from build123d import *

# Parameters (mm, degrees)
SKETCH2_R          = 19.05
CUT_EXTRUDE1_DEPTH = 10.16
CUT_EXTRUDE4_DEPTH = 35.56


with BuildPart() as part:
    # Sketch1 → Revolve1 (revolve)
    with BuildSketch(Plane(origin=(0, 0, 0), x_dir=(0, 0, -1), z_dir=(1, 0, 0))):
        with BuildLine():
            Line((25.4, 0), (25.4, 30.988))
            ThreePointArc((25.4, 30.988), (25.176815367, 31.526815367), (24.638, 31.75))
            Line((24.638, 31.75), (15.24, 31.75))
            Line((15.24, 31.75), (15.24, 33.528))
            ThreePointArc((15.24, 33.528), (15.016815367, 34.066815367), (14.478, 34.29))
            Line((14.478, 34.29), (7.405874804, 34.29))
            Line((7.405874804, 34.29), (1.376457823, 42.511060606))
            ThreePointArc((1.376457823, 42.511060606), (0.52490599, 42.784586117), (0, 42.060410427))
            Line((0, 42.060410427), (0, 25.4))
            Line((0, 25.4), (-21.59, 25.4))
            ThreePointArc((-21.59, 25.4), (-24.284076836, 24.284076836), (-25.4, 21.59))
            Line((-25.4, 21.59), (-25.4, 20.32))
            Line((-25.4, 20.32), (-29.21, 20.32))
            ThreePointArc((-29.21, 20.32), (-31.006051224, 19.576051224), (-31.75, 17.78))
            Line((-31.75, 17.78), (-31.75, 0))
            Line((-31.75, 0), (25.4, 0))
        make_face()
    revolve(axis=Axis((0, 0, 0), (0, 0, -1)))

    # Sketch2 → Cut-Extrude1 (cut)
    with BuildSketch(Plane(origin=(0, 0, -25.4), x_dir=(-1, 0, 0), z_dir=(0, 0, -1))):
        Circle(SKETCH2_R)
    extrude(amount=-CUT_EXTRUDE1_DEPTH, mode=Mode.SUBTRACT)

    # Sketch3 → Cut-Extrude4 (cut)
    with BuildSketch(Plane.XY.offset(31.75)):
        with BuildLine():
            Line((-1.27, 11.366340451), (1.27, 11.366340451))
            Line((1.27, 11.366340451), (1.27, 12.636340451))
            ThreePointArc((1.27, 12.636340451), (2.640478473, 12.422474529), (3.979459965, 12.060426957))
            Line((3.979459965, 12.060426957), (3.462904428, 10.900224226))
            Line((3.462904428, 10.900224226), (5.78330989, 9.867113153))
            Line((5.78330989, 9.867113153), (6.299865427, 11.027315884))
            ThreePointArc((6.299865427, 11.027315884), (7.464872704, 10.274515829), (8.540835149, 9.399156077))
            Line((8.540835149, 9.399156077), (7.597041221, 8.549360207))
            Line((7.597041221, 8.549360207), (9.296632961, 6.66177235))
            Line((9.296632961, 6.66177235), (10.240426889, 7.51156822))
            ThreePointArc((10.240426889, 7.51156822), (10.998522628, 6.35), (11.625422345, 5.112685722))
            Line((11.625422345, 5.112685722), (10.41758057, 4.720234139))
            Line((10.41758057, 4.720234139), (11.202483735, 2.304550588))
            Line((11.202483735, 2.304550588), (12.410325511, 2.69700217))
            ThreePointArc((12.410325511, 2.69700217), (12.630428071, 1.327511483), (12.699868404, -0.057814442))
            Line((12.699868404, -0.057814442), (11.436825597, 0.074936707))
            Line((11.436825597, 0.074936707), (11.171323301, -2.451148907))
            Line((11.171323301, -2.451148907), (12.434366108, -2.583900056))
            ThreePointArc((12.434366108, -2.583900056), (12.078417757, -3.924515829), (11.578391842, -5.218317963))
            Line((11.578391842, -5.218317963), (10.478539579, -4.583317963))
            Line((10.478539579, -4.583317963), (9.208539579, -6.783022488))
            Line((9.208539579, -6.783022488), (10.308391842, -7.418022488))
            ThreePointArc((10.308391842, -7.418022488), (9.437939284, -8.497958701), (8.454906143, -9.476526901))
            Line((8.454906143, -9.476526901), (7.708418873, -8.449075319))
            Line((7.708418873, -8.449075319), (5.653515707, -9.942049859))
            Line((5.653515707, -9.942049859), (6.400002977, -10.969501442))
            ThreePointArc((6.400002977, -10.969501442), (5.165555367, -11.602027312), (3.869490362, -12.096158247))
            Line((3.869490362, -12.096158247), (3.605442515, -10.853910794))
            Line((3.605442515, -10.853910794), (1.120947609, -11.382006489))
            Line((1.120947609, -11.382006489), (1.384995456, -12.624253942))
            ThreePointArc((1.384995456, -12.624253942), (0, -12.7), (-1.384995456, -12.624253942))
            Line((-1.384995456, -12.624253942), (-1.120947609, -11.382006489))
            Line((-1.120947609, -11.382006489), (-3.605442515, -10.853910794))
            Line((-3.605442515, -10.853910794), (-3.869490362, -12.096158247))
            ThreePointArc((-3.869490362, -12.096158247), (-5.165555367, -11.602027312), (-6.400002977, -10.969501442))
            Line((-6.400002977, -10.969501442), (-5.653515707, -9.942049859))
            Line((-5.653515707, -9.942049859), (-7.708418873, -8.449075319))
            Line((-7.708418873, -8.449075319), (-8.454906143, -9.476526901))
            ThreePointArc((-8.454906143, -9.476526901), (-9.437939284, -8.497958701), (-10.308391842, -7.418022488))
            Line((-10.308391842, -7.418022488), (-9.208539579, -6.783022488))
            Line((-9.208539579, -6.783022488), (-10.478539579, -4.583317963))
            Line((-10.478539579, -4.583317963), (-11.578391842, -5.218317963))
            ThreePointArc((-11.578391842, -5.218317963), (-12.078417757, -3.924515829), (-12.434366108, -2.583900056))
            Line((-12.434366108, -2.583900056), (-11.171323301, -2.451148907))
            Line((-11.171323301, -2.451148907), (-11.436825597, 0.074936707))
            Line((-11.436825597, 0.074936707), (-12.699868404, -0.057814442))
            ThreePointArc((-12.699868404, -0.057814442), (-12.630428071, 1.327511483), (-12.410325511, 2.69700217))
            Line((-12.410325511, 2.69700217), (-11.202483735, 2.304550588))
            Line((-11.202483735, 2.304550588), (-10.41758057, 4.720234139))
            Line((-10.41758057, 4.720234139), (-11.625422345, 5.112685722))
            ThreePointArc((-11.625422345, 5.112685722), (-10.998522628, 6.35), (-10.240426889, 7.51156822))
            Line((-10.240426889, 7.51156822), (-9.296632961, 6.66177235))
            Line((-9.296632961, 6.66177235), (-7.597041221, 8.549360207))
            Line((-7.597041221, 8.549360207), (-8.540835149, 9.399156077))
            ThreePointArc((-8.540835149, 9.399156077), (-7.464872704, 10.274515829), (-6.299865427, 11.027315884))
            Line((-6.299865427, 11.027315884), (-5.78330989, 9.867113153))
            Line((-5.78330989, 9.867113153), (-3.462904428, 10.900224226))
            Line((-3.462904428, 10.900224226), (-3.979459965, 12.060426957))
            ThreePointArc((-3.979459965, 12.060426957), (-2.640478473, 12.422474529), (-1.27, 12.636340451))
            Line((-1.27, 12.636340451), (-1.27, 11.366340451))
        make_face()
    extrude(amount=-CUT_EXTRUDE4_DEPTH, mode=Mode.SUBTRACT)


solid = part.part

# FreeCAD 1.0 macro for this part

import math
import FreeCAD as App
import Part
import Sketcher

V = App.Vector
Q = App.Units.Quantity

doc = App.newDocument("Part")
body = doc.addObject("PartDesign::Body", "Body")

# Sketch on YZ plane
sketch1 = body.newObject("Sketcher::SketchObject", "Sketch")
sketch1.AttachmentSupport = (doc.getObject("YZ_Plane"), [""])
sketch1.MapMode = "FlatFace"
sketch1.addGeometry(Part.LineSegment(V(0, -25.4, 0), V(31, -25.4, 0)), False)
sketch1.addGeometry(Part.ArcOfCircle(Part.Circle(V(31, -24.6, 0), V(0, 0, 1), 0.8), math.radians(-90), math.radians(0)), False)
sketch1.addGeometry(Part.LineSegment(V(31.8, -24.6, 0), V(31.8, -15.2, 0)), False)
sketch1.addGeometry(Part.LineSegment(V(31.8, -15.2, 0), V(33.5, -15.2, 0)), False)
sketch1.addGeometry(Part.ArcOfCircle(Part.Circle(V(33.5, -14.5, 0), V(0, 0, 1), 0.8), math.radians(-90), math.radians(0)), False)
sketch1.addGeometry(Part.LineSegment(V(34.3, -14.5, 0), V(34.3, -7.4, 0)), False)
sketch1.addGeometry(Part.LineSegment(V(34.3, -7.4, 0), V(42.5, -1.4, 0)), False)
sketch1.addGeometry(Part.ArcOfCircle(Part.Circle(V(42.1, -0.8, 0), V(0, 0, 1), 0.8), math.radians(-54), math.radians(90)), False)
sketch1.addGeometry(Part.LineSegment(V(42.1, 0, 0), V(25.4, 0, 0)), False)
sketch1.addGeometry(Part.LineSegment(V(25.4, 0, 0), V(25.4, 21.6, 0)), False)
sketch1.addGeometry(Part.ArcOfCircle(Part.Circle(V(21.6, 21.6, 0), V(0, 0, 1), 3.8), math.radians(0), math.radians(90)), False)
sketch1.addGeometry(Part.LineSegment(V(21.6, 25.4, 0), V(20.3, 25.4, 0)), False)
sketch1.addGeometry(Part.LineSegment(V(20.3, 25.4, 0), V(20.3, 29.2, 0)), False)
sketch1.addGeometry(Part.ArcOfCircle(Part.Circle(V(17.8, 29.2, 0), V(0, 0, 1), 2.5), math.radians(0), math.radians(90)), False)
sketch1.addGeometry(Part.LineSegment(V(17.8, 31.8, 0), V(0, 31.8, 0)), False)
sketch1.addGeometry(Part.LineSegment(V(0, 31.8, 0), V(0, -25.4, 0)), False)
sketch1.addConstraint(Sketcher.Constraint("Tangent", 0, 2, 1, 1))
sketch1.addConstraint(Sketcher.Constraint("Tangent", 1, 2, 2, 1))
sketch1.addConstraint(Sketcher.Constraint("Coincident", 2, 2, 3, 1))
sketch1.addConstraint(Sketcher.Constraint("Tangent", 3, 2, 4, 1))
sketch1.addConstraint(Sketcher.Constraint("Tangent", 4, 2, 5, 1))
sketch1.addConstraint(Sketcher.Constraint("Coincident", 5, 2, 6, 1))
sketch1.addConstraint(Sketcher.Constraint("Tangent", 6, 2, 7, 1))
sketch1.addConstraint(Sketcher.Constraint("Tangent", 7, 2, 8, 1))
sketch1.addConstraint(Sketcher.Constraint("Coincident", 8, 2, 9, 1))
sketch1.addConstraint(Sketcher.Constraint("Tangent", 9, 2, 10, 1))
sketch1.addConstraint(Sketcher.Constraint("Tangent", 10, 2, 11, 1))
sketch1.addConstraint(Sketcher.Constraint("Coincident", 11, 2, 12, 1))
sketch1.addConstraint(Sketcher.Constraint("Tangent", 12, 2, 13, 1))
sketch1.addConstraint(Sketcher.Constraint("Tangent", 13, 2, 14, 1))
sketch1.addConstraint(Sketcher.Constraint("Coincident", 14, 2, 15, 1))
sketch1.addConstraint(Sketcher.Constraint("Coincident", 15, 2, 0, 1))
sketch1.addConstraint(Sketcher.Constraint("Horizontal", 0))
sketch1.addConstraint(Sketcher.Constraint("Vertical", 2))
sketch1.addConstraint(Sketcher.Constraint("Horizontal", 3))
sketch1.addConstraint(Sketcher.Constraint("Vertical", 5))
sketch1.addConstraint(Sketcher.Constraint("Horizontal", 8))
sketch1.addConstraint(Sketcher.Constraint("Vertical", 9))
sketch1.addConstraint(Sketcher.Constraint("Horizontal", 11))
sketch1.addConstraint(Sketcher.Constraint("Vertical", 12))
sketch1.addConstraint(Sketcher.Constraint("Horizontal", 14))
sketch1.addConstraint(Sketcher.Constraint("Vertical", 15))
sketch1.addConstraint(Sketcher.Constraint("Equal", 1, 4))
sketch1.addConstraint(Sketcher.Constraint("Equal", 4, 7))
sketch1.addConstraint(Sketcher.Constraint("PointOnObject", 7, 2, -1))
sketch1.addConstraint(Sketcher.Constraint("PointOnObject", 14, 2, -2))
sketch1.addConstraint(Sketcher.Constraint("Radius", 13, Q("0.1 in")))
sketch1.addConstraint(Sketcher.Constraint("Radius", 1, Q("0.03 in")))
sketch1.addConstraint(Sketcher.Constraint("Radius", 10, Q("0.15 in")))
sketch1.addConstraint(Sketcher.Constraint("DistanceX", 14, 2, 14, 1, Q("0.7 in")))
sketch1.addConstraint(Sketcher.Constraint("DistanceY", 0, 2, -1, 1, Q("1 in")))
sketch1.addConstraint(Sketcher.Constraint("DistanceX", -1, 1, 8, 2, Q("1 in")))
sketch1.addConstraint(Sketcher.Constraint("DistanceY", -1, 1, 10, 2, Q("1 in")))
sketch1.addConstraint(Sketcher.Constraint("DistanceX", 0, 1, 0, 2, Q("1.22 in")))
sketch1.addConstraint(Sketcher.Constraint("DistanceX", 3, 1, 3, 2, Q("0.07 in")))
sketch1.addConstraint(Sketcher.Constraint("DistanceY", 2, 1, 2, 2, Q("0.37 in")))
sketch1.addConstraint(Sketcher.Constraint("DistanceY", 12, 1, 12, 2, Q("0.15 in")))
sketch1.addConstraint(Sketcher.Constraint("DistanceX", 8, 2, 8, 1, Q("16.66041 mm")))
sketch1.addConstraint(Sketcher.Constraint("DistanceY", 5, 1, 5, 2, Q("7.072125 mm")))
revolution = body.newObject("PartDesign::Revolution", "Revolution")
revolution.Profile = sketch1
revolution.ReferenceAxis = (sketch1, ["V_Axis"])
revolution.Angle = 360

# Sketch on XY plane
sketch2 = body.newObject("Sketcher::SketchObject", "Sketch001")
sketch2.AttachmentSupport = (doc.getObject("XY_Plane"), [""])
sketch2.MapMode = "FlatFace"
sketch2.AttachmentOffset = App.Placement(V(0, 0, -1 * 25.4), App.Rotation())
sketch2.addGeometry(Part.Circle(V(0, 0, 0), V(0, 0, 1), 19), False)
sketch2.addConstraint(Sketcher.Constraint("Coincident", 0, 3, -1, 1))
sketch2.addConstraint(Sketcher.Constraint("Diameter", 0, Q("1.5 in")))
pocket1 = body.newObject("PartDesign::Pocket", "Pocket")
pocket1.Profile = sketch2
pocket1.Length = Q("0.4 in")
pocket1.Reversed = True

# Sketch on XY plane
sketch3 = body.newObject("Sketcher::SketchObject", "Sketch002")
sketch3.AttachmentSupport = (doc.getObject("XY_Plane"), [""])
sketch3.MapMode = "FlatFace"
sketch3.AttachmentOffset = App.Placement(V(0, 0, 1.25 * 25.4), App.Rotation())
sketch3.addGeometry(Part.LineSegment(V(1.3, 11.4, 0), V(-1.3, 11.4, 0)), False)
sketch3.addGeometry(Part.LineSegment(V(-1.3, 11.4, 0), V(-1.3, 12.6, 0)), False)
sketch3.addGeometry(Part.ArcOfCircle(Part.Circle(V(0, 0, 0), V(0, 0, 1), 12.7), math.radians(95.74), math.radians(108.26)), False)
sketch3.addGeometry(Part.LineSegment(V(-4, 12.1, 0), V(-3.5, 10.9, 0)), False)
sketch3.addGeometry(Part.LineSegment(V(-3.5, 10.9, 0), V(-5.8, 9.9, 0)), False)
sketch3.addGeometry(Part.LineSegment(V(-5.8, 9.9, 0), V(-6.3, 11, 0)), False)
sketch3.addGeometry(Part.ArcOfCircle(Part.Circle(V(0, 0, 0), V(0, 0, 1), 12.7), math.radians(119.74), math.radians(132.26)), False)
sketch3.addGeometry(Part.LineSegment(V(-8.5, 9.4, 0), V(-7.6, 8.5, 0)), False)
sketch3.addGeometry(Part.LineSegment(V(-7.6, 8.5, 0), V(-9.3, 6.7, 0)), False)
sketch3.addGeometry(Part.LineSegment(V(-9.3, 6.7, 0), V(-10.2, 7.5, 0)), False)
sketch3.addGeometry(Part.ArcOfCircle(Part.Circle(V(0, 0, 0), V(0, 0, 1), 12.7), math.radians(143.74), math.radians(156.26)), False)
sketch3.addGeometry(Part.LineSegment(V(-11.6, 5.1, 0), V(-10.4, 4.7, 0)), False)
sketch3.addGeometry(Part.LineSegment(V(-10.4, 4.7, 0), V(-11.2, 2.3, 0)), False)
sketch3.addGeometry(Part.LineSegment(V(-11.2, 2.3, 0), V(-12.4, 2.7, 0)), False)
sketch3.addGeometry(Part.ArcOfCircle(Part.Circle(V(0, 0, 0), V(0, 0, 1), 12.7), math.radians(167.74), math.radians(180.26)), False)
sketch3.addGeometry(Part.LineSegment(V(-12.7, -0.1, 0), V(-11.4, 0.1, 0)), False)
sketch3.addGeometry(Part.LineSegment(V(-11.4, 0.1, 0), V(-11.2, -2.5, 0)), False)
sketch3.addGeometry(Part.LineSegment(V(-11.2, -2.5, 0), V(-12.4, -2.6, 0)), False)
sketch3.addGeometry(Part.ArcOfCircle(Part.Circle(V(0, 0, 0), V(0, 0, 1), 12.7), math.radians(-168.26), math.radians(-155.74)), False)
sketch3.addGeometry(Part.LineSegment(V(-11.6, -5.2, 0), V(-10.5, -4.6, 0)), False)
sketch3.addGeometry(Part.LineSegment(V(-10.5, -4.6, 0), V(-9.2, -6.8, 0)), False)
sketch3.addGeometry(Part.LineSegment(V(-9.2, -6.8, 0), V(-10.3, -7.4, 0)), False)
sketch3.addGeometry(Part.ArcOfCircle(Part.Circle(V(0, 0, 0), V(0, 0, 1), 12.7), math.radians(-144.26), math.radians(-131.74)), False)
sketch3.addGeometry(Part.LineSegment(V(-8.5, -9.5, 0), V(-7.7, -8.4, 0)), False)
sketch3.addGeometry(Part.LineSegment(V(-7.7, -8.4, 0), V(-5.7, -9.9, 0)), False)
sketch3.addGeometry(Part.LineSegment(V(-5.7, -9.9, 0), V(-6.4, -11, 0)), False)
sketch3.addGeometry(Part.ArcOfCircle(Part.Circle(V(0, 0, 0), V(0, 0, 1), 12.7), math.radians(-120.26), math.radians(-107.74)), False)
sketch3.addGeometry(Part.LineSegment(V(-3.9, -12.1, 0), V(-3.6, -10.9, 0)), False)
sketch3.addGeometry(Part.LineSegment(V(-3.6, -10.9, 0), V(-1.1, -11.4, 0)), False)
sketch3.addGeometry(Part.LineSegment(V(-1.1, -11.4, 0), V(-1.4, -12.6, 0)), False)
sketch3.addGeometry(Part.ArcOfCircle(Part.Circle(V(0, 0, 0), V(0, 0, 1), 12.7), math.radians(-96.26), math.radians(-83.74)), False)
sketch3.addGeometry(Part.LineSegment(V(1.4, -12.6, 0), V(1.1, -11.4, 0)), False)
sketch3.addGeometry(Part.LineSegment(V(1.1, -11.4, 0), V(3.6, -10.9, 0)), False)
sketch3.addGeometry(Part.LineSegment(V(3.6, -10.9, 0), V(3.9, -12.1, 0)), False)
sketch3.addGeometry(Part.ArcOfCircle(Part.Circle(V(0, 0, 0), V(0, 0, 1), 12.7), math.radians(-72.26), math.radians(-59.74)), False)
sketch3.addGeometry(Part.LineSegment(V(6.4, -11, 0), V(5.7, -9.9, 0)), False)
sketch3.addGeometry(Part.LineSegment(V(5.7, -9.9, 0), V(7.7, -8.4, 0)), False)
sketch3.addGeometry(Part.LineSegment(V(7.7, -8.4, 0), V(8.5, -9.5, 0)), False)
sketch3.addGeometry(Part.ArcOfCircle(Part.Circle(V(0, 0, 0), V(0, 0, 1), 12.7), math.radians(-48.26), math.radians(-35.74)), False)
sketch3.addGeometry(Part.LineSegment(V(10.3, -7.4, 0), V(9.2, -6.8, 0)), False)
sketch3.addGeometry(Part.LineSegment(V(9.2, -6.8, 0), V(10.5, -4.6, 0)), False)
sketch3.addGeometry(Part.LineSegment(V(10.5, -4.6, 0), V(11.6, -5.2, 0)), False)
sketch3.addGeometry(Part.ArcOfCircle(Part.Circle(V(0, 0, 0), V(0, 0, 1), 12.7), math.radians(-24.26), math.radians(-11.74)), False)
sketch3.addGeometry(Part.LineSegment(V(12.4, -2.6, 0), V(11.2, -2.5, 0)), False)
sketch3.addGeometry(Part.LineSegment(V(11.2, -2.5, 0), V(11.4, 0.1, 0)), False)
sketch3.addGeometry(Part.LineSegment(V(11.4, 0.1, 0), V(12.7, -0.1, 0)), False)
sketch3.addGeometry(Part.ArcOfCircle(Part.Circle(V(0, 0, 0), V(0, 0, 1), 12.7), math.radians(-0.26), math.radians(12.26)), False)
sketch3.addGeometry(Part.LineSegment(V(12.4, 2.7, 0), V(11.2, 2.3, 0)), False)
sketch3.addGeometry(Part.LineSegment(V(11.2, 2.3, 0), V(10.4, 4.7, 0)), False)
sketch3.addGeometry(Part.LineSegment(V(10.4, 4.7, 0), V(11.6, 5.1, 0)), False)
sketch3.addGeometry(Part.ArcOfCircle(Part.Circle(V(0, 0, 0), V(0, 0, 1), 12.7), math.radians(23.74), math.radians(36.26)), False)
sketch3.addGeometry(Part.LineSegment(V(10.2, 7.5, 0), V(9.3, 6.7, 0)), False)
sketch3.addGeometry(Part.LineSegment(V(9.3, 6.7, 0), V(7.6, 8.5, 0)), False)
sketch3.addGeometry(Part.LineSegment(V(7.6, 8.5, 0), V(8.5, 9.4, 0)), False)
sketch3.addGeometry(Part.ArcOfCircle(Part.Circle(V(0, 0, 0), V(0, 0, 1), 12.7), math.radians(47.74), math.radians(60.26)), False)
sketch3.addGeometry(Part.LineSegment(V(6.3, 11, 0), V(5.8, 9.9, 0)), False)
sketch3.addGeometry(Part.LineSegment(V(5.8, 9.9, 0), V(3.5, 10.9, 0)), False)
sketch3.addGeometry(Part.LineSegment(V(3.5, 10.9, 0), V(4, 12.1, 0)), False)
sketch3.addGeometry(Part.ArcOfCircle(Part.Circle(V(0, 0, 0), V(0, 0, 1), 12.7), math.radians(71.74), math.radians(84.26)), False)
sketch3.addGeometry(Part.LineSegment(V(1.3, 12.6, 0), V(1.3, 11.4, 0)), False)
sketch3.addConstraint(Sketcher.Constraint("Coincident", 0, 2, 1, 1))
sketch3.addConstraint(Sketcher.Constraint("Coincident", 1, 2, 2, 1))
sketch3.addConstraint(Sketcher.Constraint("Coincident", 2, 2, 3, 1))
sketch3.addConstraint(Sketcher.Constraint("Coincident", 3, 2, 4, 1))
sketch3.addConstraint(Sketcher.Constraint("Coincident", 4, 2, 5, 1))
sketch3.addConstraint(Sketcher.Constraint("Coincident", 5, 2, 6, 1))
sketch3.addConstraint(Sketcher.Constraint("Coincident", 6, 2, 7, 1))
sketch3.addConstraint(Sketcher.Constraint("Coincident", 7, 2, 8, 1))
sketch3.addConstraint(Sketcher.Constraint("Coincident", 8, 2, 9, 1))
sketch3.addConstraint(Sketcher.Constraint("Coincident", 9, 2, 10, 1))
sketch3.addConstraint(Sketcher.Constraint("Coincident", 10, 2, 11, 1))
sketch3.addConstraint(Sketcher.Constraint("Coincident", 11, 2, 12, 1))
sketch3.addConstraint(Sketcher.Constraint("Coincident", 12, 2, 13, 1))
sketch3.addConstraint(Sketcher.Constraint("Coincident", 13, 2, 14, 1))
sketch3.addConstraint(Sketcher.Constraint("Coincident", 14, 2, 15, 1))
sketch3.addConstraint(Sketcher.Constraint("Coincident", 15, 2, 16, 1))
sketch3.addConstraint(Sketcher.Constraint("Coincident", 16, 2, 17, 1))
sketch3.addConstraint(Sketcher.Constraint("Coincident", 17, 2, 18, 1))
sketch3.addConstraint(Sketcher.Constraint("Coincident", 18, 2, 19, 1))
sketch3.addConstraint(Sketcher.Constraint("Coincident", 19, 2, 20, 1))
sketch3.addConstraint(Sketcher.Constraint("Coincident", 20, 2, 21, 1))
sketch3.addConstraint(Sketcher.Constraint("Coincident", 21, 2, 22, 1))
sketch3.addConstraint(Sketcher.Constraint("Coincident", 22, 2, 23, 1))
sketch3.addConstraint(Sketcher.Constraint("Coincident", 23, 2, 24, 1))
sketch3.addConstraint(Sketcher.Constraint("Coincident", 24, 2, 25, 1))
sketch3.addConstraint(Sketcher.Constraint("Coincident", 25, 2, 26, 1))
sketch3.addConstraint(Sketcher.Constraint("Coincident", 26, 2, 27, 1))
sketch3.addConstraint(Sketcher.Constraint("Coincident", 27, 2, 28, 1))
sketch3.addConstraint(Sketcher.Constraint("Coincident", 28, 2, 29, 1))
sketch3.addConstraint(Sketcher.Constraint("Coincident", 29, 2, 30, 1))
sketch3.addConstraint(Sketcher.Constraint("Coincident", 30, 2, 31, 1))
sketch3.addConstraint(Sketcher.Constraint("Coincident", 31, 2, 32, 1))
sketch3.addConstraint(Sketcher.Constraint("Coincident", 32, 2, 33, 1))
sketch3.addConstraint(Sketcher.Constraint("Coincident", 33, 2, 34, 1))
sketch3.addConstraint(Sketcher.Constraint("Coincident", 34, 2, 35, 1))
sketch3.addConstraint(Sketcher.Constraint("Coincident", 35, 2, 36, 1))
sketch3.addConstraint(Sketcher.Constraint("Coincident", 36, 2, 37, 1))
sketch3.addConstraint(Sketcher.Constraint("Coincident", 37, 2, 38, 1))
sketch3.addConstraint(Sketcher.Constraint("Coincident", 38, 2, 39, 1))
sketch3.addConstraint(Sketcher.Constraint("Coincident", 39, 2, 40, 1))
sketch3.addConstraint(Sketcher.Constraint("Coincident", 40, 2, 41, 1))
sketch3.addConstraint(Sketcher.Constraint("Coincident", 41, 2, 42, 1))
sketch3.addConstraint(Sketcher.Constraint("Coincident", 42, 2, 43, 1))
sketch3.addConstraint(Sketcher.Constraint("Coincident", 43, 2, 44, 1))
sketch3.addConstraint(Sketcher.Constraint("Coincident", 44, 2, 45, 1))
sketch3.addConstraint(Sketcher.Constraint("Coincident", 45, 2, 46, 1))
sketch3.addConstraint(Sketcher.Constraint("Coincident", 46, 2, 47, 1))
sketch3.addConstraint(Sketcher.Constraint("Coincident", 47, 2, 48, 1))
sketch3.addConstraint(Sketcher.Constraint("Coincident", 48, 2, 49, 1))
sketch3.addConstraint(Sketcher.Constraint("Coincident", 49, 2, 50, 1))
sketch3.addConstraint(Sketcher.Constraint("Coincident", 50, 2, 51, 1))
sketch3.addConstraint(Sketcher.Constraint("Coincident", 51, 2, 52, 1))
sketch3.addConstraint(Sketcher.Constraint("Coincident", 52, 2, 53, 1))
sketch3.addConstraint(Sketcher.Constraint("Coincident", 53, 2, 54, 1))
sketch3.addConstraint(Sketcher.Constraint("Coincident", 54, 2, 55, 1))
sketch3.addConstraint(Sketcher.Constraint("Coincident", 55, 2, 56, 1))
sketch3.addConstraint(Sketcher.Constraint("Coincident", 56, 2, 57, 1))
sketch3.addConstraint(Sketcher.Constraint("Coincident", 57, 2, 58, 1))
sketch3.addConstraint(Sketcher.Constraint("Coincident", 58, 2, 59, 1))
sketch3.addConstraint(Sketcher.Constraint("Coincident", 59, 2, 0, 1))
sketch3.addConstraint(Sketcher.Constraint("Horizontal", 0))
sketch3.addConstraint(Sketcher.Constraint("Vertical", 1))
sketch3.addConstraint(Sketcher.Constraint("Vertical", 59))
sketch3.addConstraint(Sketcher.Constraint("Coincident", 2, 3, -1, 1))
sketch3.addConstraint(Sketcher.Constraint("Coincident", 6, 3, -1, 1))
sketch3.addConstraint(Sketcher.Constraint("Coincident", 10, 3, -1, 1))
sketch3.addConstraint(Sketcher.Constraint("Coincident", 14, 3, -1, 1))
sketch3.addConstraint(Sketcher.Constraint("Coincident", 18, 3, -1, 1))
sketch3.addConstraint(Sketcher.Constraint("Coincident", 22, 3, -1, 1))
sketch3.addConstraint(Sketcher.Constraint("Coincident", 26, 3, -1, 1))
sketch3.addConstraint(Sketcher.Constraint("Coincident", 30, 3, -1, 1))
sketch3.addConstraint(Sketcher.Constraint("Coincident", 34, 3, -1, 1))
sketch3.addConstraint(Sketcher.Constraint("Coincident", 38, 3, -1, 1))
sketch3.addConstraint(Sketcher.Constraint("Coincident", 42, 3, -1, 1))
sketch3.addConstraint(Sketcher.Constraint("Coincident", 46, 3, -1, 1))
sketch3.addConstraint(Sketcher.Constraint("Coincident", 50, 3, -1, 1))
sketch3.addConstraint(Sketcher.Constraint("Coincident", 54, 3, -1, 1))
sketch3.addConstraint(Sketcher.Constraint("Coincident", 58, 3, -1, 1))
sketch3.addConstraint(Sketcher.Constraint("Equal", 2, 6))
sketch3.addConstraint(Sketcher.Constraint("Equal", 6, 10))
sketch3.addConstraint(Sketcher.Constraint("Equal", 10, 14))
sketch3.addConstraint(Sketcher.Constraint("Equal", 14, 18))
sketch3.addConstraint(Sketcher.Constraint("Equal", 18, 22))
sketch3.addConstraint(Sketcher.Constraint("Equal", 22, 26))
sketch3.addConstraint(Sketcher.Constraint("Equal", 26, 30))
sketch3.addConstraint(Sketcher.Constraint("Equal", 30, 34))
sketch3.addConstraint(Sketcher.Constraint("Equal", 34, 38))
sketch3.addConstraint(Sketcher.Constraint("Equal", 38, 42))
sketch3.addConstraint(Sketcher.Constraint("Equal", 42, 46))
sketch3.addConstraint(Sketcher.Constraint("Equal", 46, 50))
sketch3.addConstraint(Sketcher.Constraint("Equal", 50, 54))
sketch3.addConstraint(Sketcher.Constraint("Equal", 54, 58))
sketch3.addConstraint(Sketcher.Constraint("Symmetric", 28, 2, 31, 2, -2))
sketch3.addConstraint(Sketcher.Constraint("Symmetric", 27, 2, 32, 2, -2))
sketch3.addConstraint(Sketcher.Constraint("Symmetric", 24, 2, 35, 2, -2))
sketch3.addConstraint(Sketcher.Constraint("Symmetric", 23, 2, 36, 2, -2))
sketch3.addConstraint(Sketcher.Constraint("Symmetric", 20, 2, 39, 2, -2))
sketch3.addConstraint(Sketcher.Constraint("Symmetric", 19, 2, 40, 2, -2))
sketch3.addConstraint(Sketcher.Constraint("Symmetric", 16, 2, 43, 2, -2))
sketch3.addConstraint(Sketcher.Constraint("Symmetric", 15, 2, 44, 2, -2))
sketch3.addConstraint(Sketcher.Constraint("Symmetric", 12, 2, 47, 2, -2))
sketch3.addConstraint(Sketcher.Constraint("Symmetric", 11, 2, 48, 2, -2))
sketch3.addConstraint(Sketcher.Constraint("Symmetric", 8, 2, 51, 2, -2))
sketch3.addConstraint(Sketcher.Constraint("Symmetric", 7, 2, 52, 2, -2))
sketch3.addConstraint(Sketcher.Constraint("Symmetric", 4, 2, 55, 2, -2))
sketch3.addConstraint(Sketcher.Constraint("Symmetric", 3, 2, 56, 2, -2))
sketch3.addConstraint(Sketcher.Constraint("Perpendicular", 3, 4))
sketch3.addConstraint(Sketcher.Constraint("Perpendicular", 4, 5))
sketch3.addConstraint(Sketcher.Constraint("Perpendicular", 7, 8))
sketch3.addConstraint(Sketcher.Constraint("Perpendicular", 8, 9))
sketch3.addConstraint(Sketcher.Constraint("Perpendicular", 11, 12))
sketch3.addConstraint(Sketcher.Constraint("Perpendicular", 12, 13))
sketch3.addConstraint(Sketcher.Constraint("Perpendicular", 15, 16))
sketch3.addConstraint(Sketcher.Constraint("Perpendicular", 16, 17))
sketch3.addConstraint(Sketcher.Constraint("Perpendicular", 19, 20))
sketch3.addConstraint(Sketcher.Constraint("Perpendicular", 20, 21))
sketch3.addConstraint(Sketcher.Constraint("Perpendicular", 23, 24))
sketch3.addConstraint(Sketcher.Constraint("Perpendicular", 24, 25))
sketch3.addConstraint(Sketcher.Constraint("Perpendicular", 27, 28))
sketch3.addConstraint(Sketcher.Constraint("Perpendicular", 28, 29))
sketch3.addConstraint(Sketcher.Constraint("Perpendicular", 31, 32))
sketch3.addConstraint(Sketcher.Constraint("Perpendicular", 32, 33))
sketch3.addConstraint(Sketcher.Constraint("Perpendicular", 35, 36))
sketch3.addConstraint(Sketcher.Constraint("Perpendicular", 36, 37))
sketch3.addConstraint(Sketcher.Constraint("Perpendicular", 39, 40))
sketch3.addConstraint(Sketcher.Constraint("Perpendicular", 40, 41))
sketch3.addConstraint(Sketcher.Constraint("Perpendicular", 43, 44))
sketch3.addConstraint(Sketcher.Constraint("Perpendicular", 44, 45))
sketch3.addConstraint(Sketcher.Constraint("Perpendicular", 47, 48))
sketch3.addConstraint(Sketcher.Constraint("Perpendicular", 48, 49))
sketch3.addConstraint(Sketcher.Constraint("Perpendicular", 51, 52))
sketch3.addConstraint(Sketcher.Constraint("Perpendicular", 52, 53))
sketch3.addConstraint(Sketcher.Constraint("Perpendicular", 55, 56))
sketch3.addConstraint(Sketcher.Constraint("Perpendicular", 56, 57))
sketch3.addConstraint(Sketcher.Constraint("Horizontal", 1, 2, 58, 2))
sketch3.addConstraint(Sketcher.Constraint("Equal", 3, 5))
sketch3.addConstraint(Sketcher.Constraint("Equal", 5, 7))
sketch3.addConstraint(Sketcher.Constraint("Equal", 4, 8))
sketch3.addConstraint(Sketcher.Constraint("Equal", 7, 9))
sketch3.addConstraint(Sketcher.Constraint("Equal", 9, 11))
sketch3.addConstraint(Sketcher.Constraint("Equal", 8, 12))
sketch3.addConstraint(Sketcher.Constraint("Equal", 11, 13))
sketch3.addConstraint(Sketcher.Constraint("Equal", 13, 15))
sketch3.addConstraint(Sketcher.Constraint("Equal", 12, 16))
sketch3.addConstraint(Sketcher.Constraint("Equal", 15, 17))
sketch3.addConstraint(Sketcher.Constraint("Equal", 17, 19))
sketch3.addConstraint(Sketcher.Constraint("Equal", 16, 20))
sketch3.addConstraint(Sketcher.Constraint("Equal", 19, 21))
sketch3.addConstraint(Sketcher.Constraint("Equal", 21, 23))
sketch3.addConstraint(Sketcher.Constraint("Equal", 20, 24))
sketch3.addConstraint(Sketcher.Constraint("Equal", 23, 25))
sketch3.addConstraint(Sketcher.Constraint("Equal", 25, 27))
sketch3.addConstraint(Sketcher.Constraint("Equal", 24, 28))
sketch3.addConstraint(Sketcher.Constraint("Equal", 27, 29))
sketch3.addConstraint(Sketcher.Constraint("Radius", 2, Q("0.5 in")))
sketch3.addConstraint(Sketcher.Constraint("DistanceX", 0, 2, 0, 1, Q("0.1 in")))
sketch3.addConstraint(Sketcher.Constraint("Angle", 3, Q("-66 deg")))
sketch3.addConstraint(Sketcher.Constraint("Angle", 7, Q("-42 deg")))
sketch3.addConstraint(Sketcher.Constraint("Angle", 11, Q("-18 deg")))
sketch3.addConstraint(Sketcher.Constraint("Angle", 15, Q("6 deg")))
sketch3.addConstraint(Sketcher.Constraint("Angle", 19, Q("30 deg")))
sketch3.addConstraint(Sketcher.Constraint("Angle", 23, Q("54 deg")))
sketch3.addConstraint(Sketcher.Constraint("Angle", 27, Q("78 deg")))
sketch3.addConstraint(Sketcher.Constraint("Distance", 4, Q("0.1 in")))
sketch3.addConstraint(Sketcher.Constraint("DistanceY", 1, 1, 1, 2, Q("0.05 in")))
sketch3.addConstraint(Sketcher.Constraint("Distance", 3, Q("0.05 in")))
pocket2 = body.newObject("PartDesign::Pocket", "Pocket001")
pocket2.Profile = sketch3
pocket2.Length = Q("1.4 in")

doc.recompute()
